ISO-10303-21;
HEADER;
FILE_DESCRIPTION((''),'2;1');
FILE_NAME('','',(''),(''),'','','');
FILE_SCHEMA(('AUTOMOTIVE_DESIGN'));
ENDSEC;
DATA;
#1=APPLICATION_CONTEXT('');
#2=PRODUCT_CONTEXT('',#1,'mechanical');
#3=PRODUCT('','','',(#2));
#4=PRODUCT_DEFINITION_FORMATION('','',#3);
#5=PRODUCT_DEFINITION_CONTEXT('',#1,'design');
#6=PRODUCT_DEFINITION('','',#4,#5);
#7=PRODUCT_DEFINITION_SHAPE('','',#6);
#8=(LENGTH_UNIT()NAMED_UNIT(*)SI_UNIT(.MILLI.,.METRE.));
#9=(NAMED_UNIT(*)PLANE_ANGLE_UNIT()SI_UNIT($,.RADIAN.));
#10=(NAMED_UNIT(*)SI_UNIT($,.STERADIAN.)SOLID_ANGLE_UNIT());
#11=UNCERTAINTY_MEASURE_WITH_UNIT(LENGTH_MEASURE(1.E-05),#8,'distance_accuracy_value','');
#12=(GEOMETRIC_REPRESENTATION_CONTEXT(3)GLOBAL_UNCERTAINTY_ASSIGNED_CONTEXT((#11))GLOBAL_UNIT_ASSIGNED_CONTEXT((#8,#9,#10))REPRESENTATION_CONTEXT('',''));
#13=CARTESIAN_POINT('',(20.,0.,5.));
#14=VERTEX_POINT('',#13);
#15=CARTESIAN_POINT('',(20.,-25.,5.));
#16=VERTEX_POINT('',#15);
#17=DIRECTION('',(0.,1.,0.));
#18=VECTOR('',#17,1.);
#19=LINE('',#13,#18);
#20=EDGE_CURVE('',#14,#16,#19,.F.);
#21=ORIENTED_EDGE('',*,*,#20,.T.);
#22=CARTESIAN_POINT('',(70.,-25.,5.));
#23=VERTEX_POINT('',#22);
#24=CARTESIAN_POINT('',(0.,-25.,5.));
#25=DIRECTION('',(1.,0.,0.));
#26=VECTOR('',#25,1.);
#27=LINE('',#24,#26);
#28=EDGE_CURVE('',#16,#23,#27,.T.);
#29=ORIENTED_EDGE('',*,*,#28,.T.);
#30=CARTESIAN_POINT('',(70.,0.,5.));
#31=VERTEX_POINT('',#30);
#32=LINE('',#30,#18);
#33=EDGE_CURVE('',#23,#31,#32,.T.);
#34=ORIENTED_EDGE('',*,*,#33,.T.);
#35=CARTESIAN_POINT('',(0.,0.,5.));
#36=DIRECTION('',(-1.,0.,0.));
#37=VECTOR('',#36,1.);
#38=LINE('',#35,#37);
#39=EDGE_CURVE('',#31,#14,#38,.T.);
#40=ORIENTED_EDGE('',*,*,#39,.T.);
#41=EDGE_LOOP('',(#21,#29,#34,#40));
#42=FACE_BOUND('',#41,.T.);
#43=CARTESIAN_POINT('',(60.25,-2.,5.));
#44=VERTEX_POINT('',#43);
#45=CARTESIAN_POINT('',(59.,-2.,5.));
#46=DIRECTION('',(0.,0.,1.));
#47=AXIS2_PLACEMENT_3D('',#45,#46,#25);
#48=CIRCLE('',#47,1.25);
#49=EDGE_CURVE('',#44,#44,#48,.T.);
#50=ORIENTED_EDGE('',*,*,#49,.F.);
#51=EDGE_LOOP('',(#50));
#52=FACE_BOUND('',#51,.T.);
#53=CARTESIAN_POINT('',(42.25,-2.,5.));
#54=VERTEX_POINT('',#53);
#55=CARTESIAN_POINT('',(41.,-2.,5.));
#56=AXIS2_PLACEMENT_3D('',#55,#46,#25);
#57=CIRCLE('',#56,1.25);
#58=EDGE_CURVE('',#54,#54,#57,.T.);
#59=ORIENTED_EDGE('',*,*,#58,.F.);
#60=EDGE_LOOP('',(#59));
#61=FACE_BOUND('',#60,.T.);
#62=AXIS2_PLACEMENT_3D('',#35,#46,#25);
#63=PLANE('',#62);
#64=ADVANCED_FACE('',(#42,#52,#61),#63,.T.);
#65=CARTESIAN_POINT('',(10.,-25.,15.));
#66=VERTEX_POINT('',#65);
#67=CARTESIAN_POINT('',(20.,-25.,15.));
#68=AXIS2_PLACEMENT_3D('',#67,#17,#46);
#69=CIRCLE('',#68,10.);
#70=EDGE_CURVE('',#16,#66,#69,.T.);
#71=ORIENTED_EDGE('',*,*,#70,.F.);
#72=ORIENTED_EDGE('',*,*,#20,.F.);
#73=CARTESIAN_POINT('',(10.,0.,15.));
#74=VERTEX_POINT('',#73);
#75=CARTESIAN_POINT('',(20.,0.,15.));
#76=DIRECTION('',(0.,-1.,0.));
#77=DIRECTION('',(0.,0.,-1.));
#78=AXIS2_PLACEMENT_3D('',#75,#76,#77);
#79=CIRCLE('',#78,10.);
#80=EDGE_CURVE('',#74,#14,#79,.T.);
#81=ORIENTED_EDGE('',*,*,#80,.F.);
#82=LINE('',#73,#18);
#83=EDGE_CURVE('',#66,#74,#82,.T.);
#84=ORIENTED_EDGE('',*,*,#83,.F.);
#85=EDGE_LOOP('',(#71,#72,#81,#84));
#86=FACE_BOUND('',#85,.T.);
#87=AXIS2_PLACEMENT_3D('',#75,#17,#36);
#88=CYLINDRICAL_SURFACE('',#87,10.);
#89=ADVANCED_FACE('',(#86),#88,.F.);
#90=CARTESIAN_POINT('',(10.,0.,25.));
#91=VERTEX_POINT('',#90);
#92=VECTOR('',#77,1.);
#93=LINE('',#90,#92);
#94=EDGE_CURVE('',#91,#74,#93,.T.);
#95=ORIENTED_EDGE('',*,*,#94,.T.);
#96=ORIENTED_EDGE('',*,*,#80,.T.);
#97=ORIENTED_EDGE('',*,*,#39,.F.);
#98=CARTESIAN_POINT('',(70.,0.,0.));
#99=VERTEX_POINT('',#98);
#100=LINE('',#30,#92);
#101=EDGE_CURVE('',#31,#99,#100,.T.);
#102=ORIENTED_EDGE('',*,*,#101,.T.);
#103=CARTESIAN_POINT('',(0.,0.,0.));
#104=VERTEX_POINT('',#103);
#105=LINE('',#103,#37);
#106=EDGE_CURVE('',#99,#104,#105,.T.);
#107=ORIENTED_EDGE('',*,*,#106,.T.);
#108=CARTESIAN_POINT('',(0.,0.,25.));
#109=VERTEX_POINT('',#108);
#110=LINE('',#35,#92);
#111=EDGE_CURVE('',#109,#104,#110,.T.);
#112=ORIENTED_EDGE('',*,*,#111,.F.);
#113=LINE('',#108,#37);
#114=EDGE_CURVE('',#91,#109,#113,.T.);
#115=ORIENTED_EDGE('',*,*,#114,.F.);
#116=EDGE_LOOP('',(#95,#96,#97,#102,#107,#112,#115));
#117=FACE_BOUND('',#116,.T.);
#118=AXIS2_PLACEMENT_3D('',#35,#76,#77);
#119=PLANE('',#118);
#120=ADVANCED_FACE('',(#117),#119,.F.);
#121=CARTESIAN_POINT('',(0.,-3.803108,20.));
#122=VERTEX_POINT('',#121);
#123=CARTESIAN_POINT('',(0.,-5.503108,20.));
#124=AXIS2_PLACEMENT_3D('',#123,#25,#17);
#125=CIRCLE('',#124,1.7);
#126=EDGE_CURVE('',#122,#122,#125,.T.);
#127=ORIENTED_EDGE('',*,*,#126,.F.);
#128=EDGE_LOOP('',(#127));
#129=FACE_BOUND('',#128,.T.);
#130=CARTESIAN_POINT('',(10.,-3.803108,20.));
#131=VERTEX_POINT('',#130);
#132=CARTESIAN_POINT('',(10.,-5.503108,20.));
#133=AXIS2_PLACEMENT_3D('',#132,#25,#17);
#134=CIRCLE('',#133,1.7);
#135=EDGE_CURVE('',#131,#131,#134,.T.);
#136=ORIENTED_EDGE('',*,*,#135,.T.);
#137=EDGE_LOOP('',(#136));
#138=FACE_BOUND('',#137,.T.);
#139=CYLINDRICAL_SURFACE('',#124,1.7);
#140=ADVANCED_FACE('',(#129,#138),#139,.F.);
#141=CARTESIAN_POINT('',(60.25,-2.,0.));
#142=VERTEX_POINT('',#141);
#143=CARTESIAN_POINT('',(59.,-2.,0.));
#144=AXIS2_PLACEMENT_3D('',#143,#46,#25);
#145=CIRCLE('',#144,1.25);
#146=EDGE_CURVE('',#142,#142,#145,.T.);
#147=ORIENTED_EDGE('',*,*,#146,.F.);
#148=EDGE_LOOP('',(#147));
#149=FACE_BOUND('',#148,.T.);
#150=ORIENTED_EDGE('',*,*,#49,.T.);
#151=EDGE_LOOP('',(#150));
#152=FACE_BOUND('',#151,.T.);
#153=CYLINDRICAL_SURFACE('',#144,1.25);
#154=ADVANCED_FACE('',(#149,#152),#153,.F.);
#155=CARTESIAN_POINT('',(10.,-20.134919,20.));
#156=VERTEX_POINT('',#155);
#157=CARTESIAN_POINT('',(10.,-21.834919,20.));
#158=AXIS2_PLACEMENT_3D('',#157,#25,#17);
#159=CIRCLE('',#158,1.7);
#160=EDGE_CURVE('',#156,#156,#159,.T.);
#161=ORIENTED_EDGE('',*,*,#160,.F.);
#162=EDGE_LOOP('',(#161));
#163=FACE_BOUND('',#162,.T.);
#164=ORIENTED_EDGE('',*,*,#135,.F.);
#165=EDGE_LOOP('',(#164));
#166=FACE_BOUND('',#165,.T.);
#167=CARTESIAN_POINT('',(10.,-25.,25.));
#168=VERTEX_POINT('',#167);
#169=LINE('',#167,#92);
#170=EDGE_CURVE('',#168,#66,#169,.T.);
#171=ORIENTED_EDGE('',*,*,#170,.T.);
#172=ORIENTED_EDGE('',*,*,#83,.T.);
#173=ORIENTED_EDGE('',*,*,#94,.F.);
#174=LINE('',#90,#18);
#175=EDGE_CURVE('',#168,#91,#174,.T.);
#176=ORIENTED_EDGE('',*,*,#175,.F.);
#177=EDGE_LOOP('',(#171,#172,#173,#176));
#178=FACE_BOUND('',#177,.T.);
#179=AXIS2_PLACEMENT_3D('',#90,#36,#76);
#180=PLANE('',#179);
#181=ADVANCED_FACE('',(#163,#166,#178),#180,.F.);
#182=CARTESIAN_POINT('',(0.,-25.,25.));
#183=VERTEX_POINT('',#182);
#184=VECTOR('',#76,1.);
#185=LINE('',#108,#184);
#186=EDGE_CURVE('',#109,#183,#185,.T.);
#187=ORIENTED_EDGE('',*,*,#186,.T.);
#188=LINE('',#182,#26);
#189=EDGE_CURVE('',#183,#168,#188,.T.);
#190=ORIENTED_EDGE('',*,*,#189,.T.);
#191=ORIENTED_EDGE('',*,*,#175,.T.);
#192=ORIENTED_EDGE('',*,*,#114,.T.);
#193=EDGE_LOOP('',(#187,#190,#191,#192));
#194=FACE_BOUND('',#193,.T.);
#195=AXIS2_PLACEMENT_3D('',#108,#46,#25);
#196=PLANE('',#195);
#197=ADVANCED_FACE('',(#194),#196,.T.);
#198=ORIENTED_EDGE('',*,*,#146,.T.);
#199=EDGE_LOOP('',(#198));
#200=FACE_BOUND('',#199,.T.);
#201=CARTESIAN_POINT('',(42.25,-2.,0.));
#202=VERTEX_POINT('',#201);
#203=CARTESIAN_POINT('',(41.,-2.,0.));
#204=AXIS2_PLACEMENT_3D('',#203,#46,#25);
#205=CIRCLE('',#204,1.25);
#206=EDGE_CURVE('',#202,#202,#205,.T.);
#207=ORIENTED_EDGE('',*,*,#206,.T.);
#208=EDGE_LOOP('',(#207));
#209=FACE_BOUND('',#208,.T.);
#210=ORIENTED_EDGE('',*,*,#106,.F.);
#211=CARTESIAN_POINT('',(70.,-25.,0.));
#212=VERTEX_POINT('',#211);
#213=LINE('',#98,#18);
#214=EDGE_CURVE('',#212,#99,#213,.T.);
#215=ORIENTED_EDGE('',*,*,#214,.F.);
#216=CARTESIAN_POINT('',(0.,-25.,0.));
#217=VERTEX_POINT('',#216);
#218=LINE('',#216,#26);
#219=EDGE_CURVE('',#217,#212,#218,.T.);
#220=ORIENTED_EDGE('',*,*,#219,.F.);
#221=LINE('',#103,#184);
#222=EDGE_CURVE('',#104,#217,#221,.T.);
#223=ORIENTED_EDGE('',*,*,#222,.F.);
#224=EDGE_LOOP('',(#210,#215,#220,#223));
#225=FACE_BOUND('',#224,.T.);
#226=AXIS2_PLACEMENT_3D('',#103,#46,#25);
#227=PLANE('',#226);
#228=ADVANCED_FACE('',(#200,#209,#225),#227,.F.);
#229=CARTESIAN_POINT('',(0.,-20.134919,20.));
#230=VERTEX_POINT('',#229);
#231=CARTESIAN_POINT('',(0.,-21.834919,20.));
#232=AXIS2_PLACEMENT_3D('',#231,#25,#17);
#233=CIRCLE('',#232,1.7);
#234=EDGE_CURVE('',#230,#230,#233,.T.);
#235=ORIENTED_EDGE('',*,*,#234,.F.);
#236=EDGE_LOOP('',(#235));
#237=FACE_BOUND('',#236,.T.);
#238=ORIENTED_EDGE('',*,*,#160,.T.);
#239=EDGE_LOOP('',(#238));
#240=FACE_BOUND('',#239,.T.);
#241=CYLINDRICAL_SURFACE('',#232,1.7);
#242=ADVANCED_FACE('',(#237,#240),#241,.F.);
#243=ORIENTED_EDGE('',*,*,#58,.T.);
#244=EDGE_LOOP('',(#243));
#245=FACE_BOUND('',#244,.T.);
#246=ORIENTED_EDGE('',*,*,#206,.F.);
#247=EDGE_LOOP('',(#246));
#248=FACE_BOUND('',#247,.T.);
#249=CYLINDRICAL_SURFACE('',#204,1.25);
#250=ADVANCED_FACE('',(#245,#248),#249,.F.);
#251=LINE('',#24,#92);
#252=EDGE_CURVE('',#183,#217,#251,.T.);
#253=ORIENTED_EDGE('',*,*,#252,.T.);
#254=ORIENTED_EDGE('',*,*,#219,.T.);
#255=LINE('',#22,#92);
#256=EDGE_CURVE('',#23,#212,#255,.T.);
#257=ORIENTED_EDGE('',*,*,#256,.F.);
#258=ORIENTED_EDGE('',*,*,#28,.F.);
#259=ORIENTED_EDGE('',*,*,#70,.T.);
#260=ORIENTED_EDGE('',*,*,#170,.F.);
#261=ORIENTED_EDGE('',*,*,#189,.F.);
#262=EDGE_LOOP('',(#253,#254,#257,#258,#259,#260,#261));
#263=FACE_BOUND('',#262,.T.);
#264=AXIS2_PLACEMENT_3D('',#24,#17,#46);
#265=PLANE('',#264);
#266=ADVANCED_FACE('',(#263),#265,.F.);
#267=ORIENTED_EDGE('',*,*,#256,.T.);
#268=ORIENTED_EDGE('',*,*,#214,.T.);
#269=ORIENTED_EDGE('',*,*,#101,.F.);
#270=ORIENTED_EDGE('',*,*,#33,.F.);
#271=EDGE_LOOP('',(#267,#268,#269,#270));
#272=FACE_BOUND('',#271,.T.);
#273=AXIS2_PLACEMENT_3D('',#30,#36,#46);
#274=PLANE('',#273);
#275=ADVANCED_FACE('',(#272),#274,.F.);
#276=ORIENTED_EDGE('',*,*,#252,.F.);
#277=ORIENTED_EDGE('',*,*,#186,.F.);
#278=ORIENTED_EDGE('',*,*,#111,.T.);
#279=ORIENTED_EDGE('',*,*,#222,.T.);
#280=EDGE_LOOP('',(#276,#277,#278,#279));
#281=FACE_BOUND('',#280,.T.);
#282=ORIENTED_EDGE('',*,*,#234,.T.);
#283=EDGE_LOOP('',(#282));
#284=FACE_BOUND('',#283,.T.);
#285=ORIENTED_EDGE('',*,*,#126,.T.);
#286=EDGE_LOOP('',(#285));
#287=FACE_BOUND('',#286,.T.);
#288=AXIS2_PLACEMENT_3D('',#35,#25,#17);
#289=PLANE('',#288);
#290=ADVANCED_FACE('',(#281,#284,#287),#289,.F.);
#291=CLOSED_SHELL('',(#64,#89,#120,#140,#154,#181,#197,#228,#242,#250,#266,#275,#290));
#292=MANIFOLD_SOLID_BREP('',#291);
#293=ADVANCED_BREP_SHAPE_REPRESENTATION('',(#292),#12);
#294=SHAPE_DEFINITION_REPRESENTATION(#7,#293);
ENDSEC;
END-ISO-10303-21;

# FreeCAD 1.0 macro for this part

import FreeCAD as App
import Part
import Sketcher
from FreeCAD import Vector


def edges_at(feature, points):
    """Names of the edges that pass closest to the given points."""
    edges = feature.Shape.Edges
    near = lambda p: min(range(len(edges)), key=lambda i: edges[i].distToShape(Part.Vertex(*p))[0])
    return sorted({f"Edge{near(p) + 1}" for p in points})


def add_polygon(sketch, points):
    """Adds a closed chain of lines whose ends are joined by coincident constraints."""
    first, n = sketch.GeometryCount, len(points)
    for a, b in zip(points, points[1:] + points[:1]):
        sketch.addGeometry(Part.LineSegment(App.Vector(*a, 0), App.Vector(*b, 0)), False)
    for i in range(n):
        sketch.addConstraint(Sketcher.Constraint("Coincident", first + i, 2, first + (i + 1) % n, 1))

doc = App.newDocument("Part")
body = doc.addObject("PartDesign::Body", "Body")

sketch1 = body.newObject("Sketcher::SketchObject", "Sketch")
sketch1.AttachmentSupport = (doc.getObject("XY_Plane"), [""])
sketch1.MapMode = "FlatFace"
add_polygon(sketch1, [(0, 0), (0, -25), (70, -25), (70, 0)])
sketch1.addConstraint(Sketcher.Constraint("Vertical", 0))
sketch1.addConstraint(Sketcher.Constraint("Horizontal", 1))
sketch1.addConstraint(Sketcher.Constraint("Vertical", 2))
sketch1.addConstraint(Sketcher.Constraint("Horizontal", 3))
sketch1.addConstraint(Sketcher.Constraint("Coincident", 3, 2, -1, 1))
sketch1.addConstraint(Sketcher.Constraint("DistanceX", 1, 1, 1, 2, 70.0))
sketch1.addConstraint(Sketcher.Constraint("DistanceY", 0, 2, 0, 1, 25.0))
pad1 = body.newObject("PartDesign::Pad", "Pad")
pad1.Profile = sketch1
pad1.Length = 5

sketch2 = body.newObject("Sketcher::SketchObject", "Sketch001")
sketch2.AttachmentSupport = (doc.getObject("XY_Plane"), [""])
sketch2.MapMode = "FlatFace"
sketch2.AttachmentOffset = App.Placement(Vector(0, 0, 5), App.Rotation())
sketch2.addGeometry(Part.Circle(Vector(41, -2, 0), Vector(0, 0, 1), 1.25), False)
sketch2.addGeometry(Part.Circle(Vector(59, -2, 0), Vector(0, 0, 1), 1.25), False)
sketch2.addConstraint(Sketcher.Constraint("Equal", 0, 1))
sketch2.addConstraint(Sketcher.Constraint("Horizontal", 0, 3, 1, 3))
sketch2.addConstraint(Sketcher.Constraint("Diameter", 0, 2.5))
sketch2.addConstraint(Sketcher.Constraint("DistanceX", -1, 1, 0, 3, 41.0))
sketch2.addConstraint(Sketcher.Constraint("DistanceY", 0, 3, -1, 1, 2.0))
sketch2.addConstraint(Sketcher.Constraint("DistanceX", -1, 1, 1, 3, 59.0))
pocket1 = body.newObject("PartDesign::Pocket", "Pocket")
pocket1.Profile = sketch2
pocket1.Type = "ThroughAll"

sketch3 = body.newObject("Sketcher::SketchObject", "Sketch002")
sketch3.AttachmentSupport = (doc.getObject("XY_Plane"), [""])
sketch3.MapMode = "FlatFace"
sketch3.AttachmentOffset = App.Placement(Vector(0, 0, 5), App.Rotation())
add_polygon(sketch3, [(0, 0), (0, -25), (10, -25), (10, 0)])
sketch3.addConstraint(Sketcher.Constraint("Vertical", 0))
sketch3.addConstraint(Sketcher.Constraint("Horizontal", 1))
sketch3.addConstraint(Sketcher.Constraint("Vertical", 2))
sketch3.addConstraint(Sketcher.Constraint("Horizontal", 3))
sketch3.addConstraint(Sketcher.Constraint("Coincident", 3, 2, -1, 1))
sketch3.addConstraint(Sketcher.Constraint("DistanceX", 1, 1, 1, 2, 10.0))
sketch3.addConstraint(Sketcher.Constraint("DistanceY", 0, 2, 0, 1, 25.0))
pad2 = body.newObject("PartDesign::Pad", "Pad001")
pad2.Profile = sketch3
pad2.Length = 20
doc.recompute()

fillet = body.newObject("PartDesign::Fillet", "Fillet")
fillet.Base = (pad2, edges_at(pad2, [(10, -12.5, 5)]))
fillet.Radius = 10

sketch4 = body.newObject("Sketcher::SketchObject", "Sketch003")
sketch4.AttachmentSupport = (doc.getObject("YZ_Plane"), [""])
sketch4.MapMode = "FlatFace"
sketch4.AttachmentOffset = App.Placement(Vector(0, 0, 10), App.Rotation())
sketch4.addGeometry(Part.Circle(Vector(-21.834919, 20, 0), Vector(0, 0, 1), 1.7), False)
sketch4.addGeometry(Part.Circle(Vector(-5.503108, 20, 0), Vector(0, 0, 1), 1.7), False)
sketch4.addConstraint(Sketcher.Constraint("Equal", 0, 1))
sketch4.addConstraint(Sketcher.Constraint("Horizontal", 0, 3, 1, 3))
sketch4.addConstraint(Sketcher.Constraint("Diameter", 0, 3.4))
sketch4.addConstraint(Sketcher.Constraint("DistanceY", -1, 1, 0, 3, 20.0))
sketch4.addConstraint(Sketcher.Constraint("DistanceX", 0, 3, -1, 1, 21.834919))
sketch4.addConstraint(Sketcher.Constraint("DistanceX", 1, 3, -1, 1, 5.503108))
pocket2 = body.newObject("PartDesign::Pocket", "Pocket001")
pocket2.Profile = sketch4
pocket2.Type = "ThroughAll"

doc.recompute()
